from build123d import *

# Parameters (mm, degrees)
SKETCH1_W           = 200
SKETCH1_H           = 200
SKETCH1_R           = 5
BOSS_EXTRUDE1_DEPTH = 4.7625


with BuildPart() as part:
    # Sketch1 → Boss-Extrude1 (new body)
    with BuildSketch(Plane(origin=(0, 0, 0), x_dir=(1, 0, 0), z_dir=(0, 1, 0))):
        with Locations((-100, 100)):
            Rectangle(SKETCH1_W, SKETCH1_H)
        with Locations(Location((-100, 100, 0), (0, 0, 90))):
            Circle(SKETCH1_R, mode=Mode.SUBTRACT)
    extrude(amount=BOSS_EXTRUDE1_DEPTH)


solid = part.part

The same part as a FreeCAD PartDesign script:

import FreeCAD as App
import Part
import Sketcher
Q = App.Units.Quantity

doc = App.newDocument("Part")
params = doc.addObject("Spreadsheet::Sheet", "Params")
for row, (alias, value) in enumerate([
    ("sketch1_diameter", "10 mm"),
    ("sketch1_width", "200 mm"),
    ("pad1_length", "4.7625 mm"),
], start=1):
    params.set(f"A{row}", alias)
    params.set(f"B{row}", "=" + value)
    params.setAlias(f"B{row}", alias)

body = doc.addObject("PartDesign::Body", "Body")

# Sketch on XZ plane
sketch1 = doc.addObject("Sketcher::SketchObject", "Sketch")
body.addObject(sketch1)
sketch1.AttachmentSupport = (doc.XZ_Plane, [""])
sketch1.MapMode = "FlatFace"
sketch1.addGeometry(Part.LineSegment(App.Vector(-200, -200, 0), App.Vector(-200, 0, 0)), False)
sketch1.addGeometry(Part.LineSegment(App.Vector(-200, 0, 0), App.Vector(0, 0, 0)), False)
sketch1.addGeometry(Part.LineSegment(App.Vector(0, 0, 0), App.Vector(0, -200, 0)), False)
sketch1.addGeometry(Part.LineSegment(App.Vector(0, -200, 0), App.Vector(-200, -200, 0)), False)
sketch1.addGeometry(Part.Circle(App.Vector(-100, -100, 0), App.Vector(0, 0, 1), 5), False)
sketch1.addConstraint(Sketcher.Constraint("Coincident", 0, 2, 1, 1))
sketch1.addConstraint(Sketcher.Constraint("Coincident", 1, 2, 2, 1))
sketch1.addConstraint(Sketcher.Constraint("Coincident", 2, 2, 3, 1))
sketch1.addConstraint(Sketcher.Constraint("Coincident", 3, 2, 0, 1))
sketch1.addConstraint(Sketcher.Constraint("Vertical", 0))
sketch1.addConstraint(Sketcher.Constraint("Horizontal", 1))
sketch1.addConstraint(Sketcher.Constraint("Vertical", 2))
sketch1.addConstraint(Sketcher.Constraint("Horizontal", 3))
sketch1.addConstraint(Sketcher.Constraint("Coincident", 1, 2, -1, 1))
sketch1.addConstraint(Sketcher.Constraint("Equal", 3, 0))
sketch1.addConstraint(Sketcher.Constraint("Diameter", 4, Q("10 mm")))
sketch1.addConstraint(Sketcher.Constraint("DistanceX", 1, 1, 1, 2, Q("200 mm")))
sketch1.addConstraint(Sketcher.Constraint("DistanceX", 4, 3, -1, 1, Q("100 mm")))
sketch1.addConstraint(Sketcher.Constraint("DistanceY", 4, 3, -1, 1, Q("100 mm")))
sketch1.setExpression("Constraints[10]", "Params.sketch1_diameter")
sketch1.setExpression("Constraints[11]", "Params.sketch1_width")
pad1 = doc.addObject("PartDesign::Pad", "Pad")
body.addObject(pad1)
pad1.Profile = sketch1
pad1.setExpression("Length", "Params.pad1_length")
pad1.Reversed = True

doc.recompute()
